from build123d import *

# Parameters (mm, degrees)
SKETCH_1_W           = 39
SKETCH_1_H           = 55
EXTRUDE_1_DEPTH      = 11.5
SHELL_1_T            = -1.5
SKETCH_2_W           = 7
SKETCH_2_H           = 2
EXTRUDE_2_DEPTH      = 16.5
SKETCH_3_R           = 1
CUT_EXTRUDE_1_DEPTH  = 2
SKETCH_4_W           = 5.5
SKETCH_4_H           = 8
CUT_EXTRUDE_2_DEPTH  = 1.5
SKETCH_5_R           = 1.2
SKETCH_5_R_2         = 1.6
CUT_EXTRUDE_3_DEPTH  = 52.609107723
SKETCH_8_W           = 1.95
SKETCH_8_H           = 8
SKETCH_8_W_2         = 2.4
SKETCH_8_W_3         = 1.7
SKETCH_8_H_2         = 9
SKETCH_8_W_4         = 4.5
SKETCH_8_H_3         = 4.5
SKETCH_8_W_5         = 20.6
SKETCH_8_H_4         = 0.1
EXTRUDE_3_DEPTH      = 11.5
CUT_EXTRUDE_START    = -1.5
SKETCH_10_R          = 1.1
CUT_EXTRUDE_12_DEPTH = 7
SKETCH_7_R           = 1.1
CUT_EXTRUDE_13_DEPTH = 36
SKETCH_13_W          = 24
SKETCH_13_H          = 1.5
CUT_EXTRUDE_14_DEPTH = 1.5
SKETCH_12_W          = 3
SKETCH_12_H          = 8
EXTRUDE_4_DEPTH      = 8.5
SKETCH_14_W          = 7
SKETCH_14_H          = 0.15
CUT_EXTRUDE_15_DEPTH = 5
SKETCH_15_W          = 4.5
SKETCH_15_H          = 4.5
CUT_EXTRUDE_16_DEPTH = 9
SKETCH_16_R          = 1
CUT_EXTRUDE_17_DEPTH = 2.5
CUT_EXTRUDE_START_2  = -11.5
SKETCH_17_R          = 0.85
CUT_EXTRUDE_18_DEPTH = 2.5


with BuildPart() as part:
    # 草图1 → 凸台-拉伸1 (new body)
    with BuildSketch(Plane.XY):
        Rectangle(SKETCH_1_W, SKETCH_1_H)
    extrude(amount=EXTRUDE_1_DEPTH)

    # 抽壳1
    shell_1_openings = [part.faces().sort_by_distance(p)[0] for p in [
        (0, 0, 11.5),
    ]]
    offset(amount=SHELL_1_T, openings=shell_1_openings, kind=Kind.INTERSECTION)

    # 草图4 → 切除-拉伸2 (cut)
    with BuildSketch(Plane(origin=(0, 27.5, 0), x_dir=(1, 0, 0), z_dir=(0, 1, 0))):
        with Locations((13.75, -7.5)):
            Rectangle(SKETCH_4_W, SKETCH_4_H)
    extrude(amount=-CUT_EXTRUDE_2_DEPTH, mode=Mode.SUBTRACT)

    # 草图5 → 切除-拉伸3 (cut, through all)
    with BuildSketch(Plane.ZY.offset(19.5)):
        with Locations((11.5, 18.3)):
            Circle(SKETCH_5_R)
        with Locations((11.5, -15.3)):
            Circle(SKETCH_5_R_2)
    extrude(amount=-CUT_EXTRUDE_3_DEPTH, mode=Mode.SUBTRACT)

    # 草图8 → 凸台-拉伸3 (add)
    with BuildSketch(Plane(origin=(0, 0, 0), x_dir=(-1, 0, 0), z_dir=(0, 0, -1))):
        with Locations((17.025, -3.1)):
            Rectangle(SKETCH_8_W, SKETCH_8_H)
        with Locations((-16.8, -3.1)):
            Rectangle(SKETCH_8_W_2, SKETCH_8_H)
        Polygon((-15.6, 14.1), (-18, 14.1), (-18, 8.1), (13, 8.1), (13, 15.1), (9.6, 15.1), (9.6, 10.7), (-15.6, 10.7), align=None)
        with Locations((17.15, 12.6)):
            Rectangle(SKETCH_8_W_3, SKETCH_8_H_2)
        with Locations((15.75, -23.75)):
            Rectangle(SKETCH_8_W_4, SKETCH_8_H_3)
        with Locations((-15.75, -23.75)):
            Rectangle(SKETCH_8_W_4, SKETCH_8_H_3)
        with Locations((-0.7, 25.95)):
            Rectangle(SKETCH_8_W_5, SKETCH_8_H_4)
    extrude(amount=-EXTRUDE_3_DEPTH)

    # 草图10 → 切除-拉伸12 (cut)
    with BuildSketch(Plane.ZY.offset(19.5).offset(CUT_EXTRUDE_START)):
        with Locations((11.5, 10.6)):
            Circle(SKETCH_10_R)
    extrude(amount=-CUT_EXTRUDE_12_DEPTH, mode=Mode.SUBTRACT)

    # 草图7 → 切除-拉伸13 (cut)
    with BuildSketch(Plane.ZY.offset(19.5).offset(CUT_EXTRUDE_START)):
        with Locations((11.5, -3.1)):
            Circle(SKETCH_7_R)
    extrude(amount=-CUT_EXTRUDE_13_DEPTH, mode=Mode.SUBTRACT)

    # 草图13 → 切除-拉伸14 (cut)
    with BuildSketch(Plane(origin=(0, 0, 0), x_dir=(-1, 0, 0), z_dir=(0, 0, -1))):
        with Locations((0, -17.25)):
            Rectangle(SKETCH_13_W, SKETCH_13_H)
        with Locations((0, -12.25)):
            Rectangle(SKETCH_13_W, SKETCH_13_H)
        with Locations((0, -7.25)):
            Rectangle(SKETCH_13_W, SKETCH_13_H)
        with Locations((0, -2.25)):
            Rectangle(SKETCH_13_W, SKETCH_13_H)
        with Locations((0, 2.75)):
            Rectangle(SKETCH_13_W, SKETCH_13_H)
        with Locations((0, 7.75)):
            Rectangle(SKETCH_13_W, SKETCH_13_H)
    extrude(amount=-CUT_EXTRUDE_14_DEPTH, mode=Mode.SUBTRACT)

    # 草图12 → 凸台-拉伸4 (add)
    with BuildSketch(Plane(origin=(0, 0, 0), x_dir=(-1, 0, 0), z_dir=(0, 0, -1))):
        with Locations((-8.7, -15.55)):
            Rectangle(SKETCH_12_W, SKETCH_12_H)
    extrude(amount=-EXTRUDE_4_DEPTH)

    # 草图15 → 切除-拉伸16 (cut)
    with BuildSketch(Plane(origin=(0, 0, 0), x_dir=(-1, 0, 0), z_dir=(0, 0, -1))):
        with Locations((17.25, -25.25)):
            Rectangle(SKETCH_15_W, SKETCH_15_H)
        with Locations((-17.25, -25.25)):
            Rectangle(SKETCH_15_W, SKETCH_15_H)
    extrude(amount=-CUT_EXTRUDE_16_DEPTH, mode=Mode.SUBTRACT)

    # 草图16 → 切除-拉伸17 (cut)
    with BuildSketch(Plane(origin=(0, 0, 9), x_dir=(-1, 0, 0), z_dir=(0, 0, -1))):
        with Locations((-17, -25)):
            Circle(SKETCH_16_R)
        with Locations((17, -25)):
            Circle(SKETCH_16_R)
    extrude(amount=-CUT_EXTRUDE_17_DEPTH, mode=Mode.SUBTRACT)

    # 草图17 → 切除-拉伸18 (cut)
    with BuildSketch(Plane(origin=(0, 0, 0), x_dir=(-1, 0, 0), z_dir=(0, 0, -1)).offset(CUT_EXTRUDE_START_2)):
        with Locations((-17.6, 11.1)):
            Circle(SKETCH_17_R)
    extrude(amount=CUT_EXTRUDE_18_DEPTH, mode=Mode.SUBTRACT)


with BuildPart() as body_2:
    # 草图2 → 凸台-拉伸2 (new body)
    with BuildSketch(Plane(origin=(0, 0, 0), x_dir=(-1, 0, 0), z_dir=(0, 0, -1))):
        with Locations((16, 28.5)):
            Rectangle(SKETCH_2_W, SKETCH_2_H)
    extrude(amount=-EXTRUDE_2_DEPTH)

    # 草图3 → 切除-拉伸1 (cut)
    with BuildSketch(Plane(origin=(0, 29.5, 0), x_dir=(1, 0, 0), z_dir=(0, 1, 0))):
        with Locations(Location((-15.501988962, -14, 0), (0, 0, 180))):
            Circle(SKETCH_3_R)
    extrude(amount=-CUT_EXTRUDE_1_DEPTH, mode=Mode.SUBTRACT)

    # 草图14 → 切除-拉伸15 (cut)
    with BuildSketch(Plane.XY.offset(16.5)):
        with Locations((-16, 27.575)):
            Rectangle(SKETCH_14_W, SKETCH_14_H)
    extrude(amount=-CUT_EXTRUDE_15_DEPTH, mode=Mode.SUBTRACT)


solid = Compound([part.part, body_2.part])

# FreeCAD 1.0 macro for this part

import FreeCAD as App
import Part
import Sketcher
Q = App.Units.Quantity


def faces_at(feature, points):
    """Names of the faces that lie closest to the given points."""
    faces = feature.Shape.Faces
    near = lambda p: min(range(len(faces)), key=lambda i: faces[i].distToShape(Part.Vertex(*p))[0])
    return sorted({f"Face{near(p) + 1}" for p in points})

doc = App.newDocument("Part")
body = doc.addObject("PartDesign::Body", "Body")

sketch1 = body.newObject("Sketcher::SketchObject", "Sketch")
sketch1.AttachmentSupport = (doc.getObject("XY_Plane"), [""])
sketch1.MapMode = "FlatFace"
sketch1.addGeometry(Part.LineSegment(App.Vector(-20, 28, 0), App.Vector(-20, -28, 0)), False)
sketch1.addGeometry(Part.LineSegment(App.Vector(-20, -28, 0), App.Vector(20, -28, 0)), False)
sketch1.addGeometry(Part.LineSegment(App.Vector(20, -28, 0), App.Vector(20, 28, 0)), False)
sketch1.addGeometry(Part.LineSegment(App.Vector(20, 28, 0), App.Vector(-20, 28, 0)), False)
sketch1.addConstraint(Sketcher.Constraint("Coincident", 0, 2, 1, 1))
sketch1.addConstraint(Sketcher.Constraint("Coincident", 1, 2, 2, 1))
sketch1.addConstraint(Sketcher.Constraint("Coincident", 2, 2, 3, 1))
sketch1.addConstraint(Sketcher.Constraint("Coincident", 3, 2, 0, 1))
sketch1.addConstraint(Sketcher.Constraint("Vertical", 0))
sketch1.addConstraint(Sketcher.Constraint("Horizontal", 1))
sketch1.addConstraint(Sketcher.Constraint("Vertical", 2))
sketch1.addConstraint(Sketcher.Constraint("Horizontal", 3))
sketch1.addConstraint(Sketcher.Constraint("Symmetric", 0, 2, 2, 2, -1, 1))
sketch1.addConstraint(Sketcher.Constraint("DistanceX", 1, 1, 1, 2, Q("39 mm")))
sketch1.addConstraint(Sketcher.Constraint("DistanceY", 0, 2, 0, 1, Q("55 mm")))
pad1 = body.newObject("PartDesign::Pad", "Pad")
pad1.Profile = sketch1
pad1.Length = 11.5
doc.recompute()

thickness = body.newObject("PartDesign::Thickness", "Thickness")
thickness.Base = (pad1, faces_at(pad1, [(0, 0, 11.5)]))
thickness.Value = 1.5
thickness.Reversed = True
thickness.Join = "Intersection"

sketch2 = body.newObject("Sketcher::SketchObject", "Sketch001")
sketch2.AttachmentSupport = (doc.getObject("XZ_Plane"), [""])
sketch2.MapMode = "FlatFace"
sketch2.AttachmentOffset = App.Placement(App.Vector(0, 0, -27.5), App.Rotation())
sketch2.addGeometry(Part.LineSegment(App.Vector(11, 4, 0), App.Vector(11, 12, 0)), False)
sketch2.addGeometry(Part.LineSegment(App.Vector(11, 12, 0), App.Vector(16, 12, 0)), False)
sketch2.addGeometry(Part.LineSegment(App.Vector(16, 12, 0), App.Vector(16, 4, 0)), False)
sketch2.addGeometry(Part.LineSegment(App.Vector(16, 4, 0), App.Vector(11, 4, 0)), False)
sketch2.addConstraint(Sketcher.Constraint("Coincident", 0, 2, 1, 1))
sketch2.addConstraint(Sketcher.Constraint("Coincident", 1, 2, 2, 1))
sketch2.addConstraint(Sketcher.Constraint("Coincident", 2, 2, 3, 1))
sketch2.addConstraint(Sketcher.Constraint("Coincident", 3, 2, 0, 1))
sketch2.addConstraint(Sketcher.Constraint("Vertical", 0))
sketch2.addConstraint(Sketcher.Constraint("Horizontal", 1))
sketch2.addConstraint(Sketcher.Constraint("Vertical", 2))
sketch2.addConstraint(Sketcher.Constraint("Horizontal", 3))
sketch2.addConstraint(Sketcher.Constraint("DistanceY", 0, 1, 0, 2, Q("8 mm")))
sketch2.addConstraint(Sketcher.Constraint("DistanceX", 1, 1, 1, 2, Q("5.5 mm")))
sketch2.addConstraint(Sketcher.Constraint("DistanceX", -1, 1, 0, 2, Q("11 mm")))
sketch2.addConstraint(Sketcher.Constraint("DistanceY", -1, 1, 0, 2, Q("11.5 mm")))
pocket1 = body.newObject("PartDesign::Pocket", "Pocket")
pocket1.Profile = sketch2
pocket1.Length = 1.5
pocket1.Reversed = True

sketch3 = body.newObject("Sketcher::SketchObject", "Sketch002")
sketch3.AttachmentSupport = (doc.getObject("YZ_Plane"), [""])
sketch3.MapMode = "FlatFace"
sketch3.AttachmentOffset = App.Placement(App.Vector(0, 0, -19.5), App.Rotation())
sketch3.addGeometry(Part.Circle(App.Vector(18.3, 11.5, 0), App.Vector(0, 0, 1), 1.2), False)
sketch3.addGeometry(Part.Circle(App.Vector(-15.3, 11.5, 0), App.Vector(0, 0, 1), 1.6), False)
sketch3.addConstraint(Sketcher.Constraint("Horizontal", 0, 3, 1, 3))
sketch3.addConstraint(Sketcher.Constraint("Diameter", 0, Q("2.4 mm")))
sketch3.addConstraint(Sketcher.Constraint("Diameter", 1, Q("3.2 mm")))
sketch3.addConstraint(Sketcher.Constraint("DistanceX", -1, 1, 0, 3, Q("18.3 mm")))
sketch3.addConstraint(Sketcher.Constraint("DistanceY", -1, 1, 0, 3, Q("11.5 mm")))
sketch3.addConstraint(Sketcher.Constraint("DistanceX", 1, 3, -1, 1, Q("15.3 mm")))
pocket2 = body.newObject("PartDesign::Pocket", "Pocket001")
pocket2.Profile = sketch3
pocket2.Type = "ThroughAll"
pocket2.Reversed = True

sketch4 = body.newObject("Sketcher::SketchObject", "Sketch003")
sketch4.AttachmentSupport = (doc.getObject("XY_Plane"), [""])
sketch4.MapMode = "FlatFace"
sketch4.addGeometry(Part.LineSegment(App.Vector(-16.05, 0.9, 0), App.Vector(-16.05, -7.1, 0)), False)
sketch4.addGeometry(Part.LineSegment(App.Vector(-16.05, -7.1, 0), App.Vector(-18, -7.1, 0)), False)
sketch4.addGeometry(Part.LineSegment(App.Vector(-18, -7.1, 0), App.Vector(-18, 0.9, 0)), False)
sketch4.addGeometry(Part.LineSegment(App.Vector(-18, 0.9, 0), App.Vector(-16.05, 0.9, 0)), False)
sketch4.addGeometry(Part.LineSegment(App.Vector(18, 0.9, 0), App.Vector(18, -7.1, 0)), False)
sketch4.addGeometry(Part.LineSegment(App.Vector(18, -7.1, 0), App.Vector(15.6, -7.1, 0)), False)
sketch4.addGeometry(Part.LineSegment(App.Vector(15.6, -7.1, 0), App.Vector(15.6, 0.9, 0)), False)
sketch4.addGeometry(Part.LineSegment(App.Vector(15.6, 0.9, 0), App.Vector(18, 0.9, 0)), False)
sketch4.addGeometry(Part.LineSegment(App.Vector(15.6, 14.1, 0), App.Vector(18, 14.1, 0)), False)
sketch4.addGeometry(Part.LineSegment(App.Vector(18, 14.1, 0), App.Vector(18, 8.1, 0)), False)
sketch4.addGeometry(Part.LineSegment(App.Vector(18, 8.1, 0), App.Vector(-13, 8.1, 0)), False)
sketch4.addGeometry(Part.LineSegment(App.Vector(-13, 8.1, 0), App.Vector(-13, 15.1, 0)), False)
sketch4.addGeometry(Part.LineSegment(App.Vector(-13, 15.1, 0), App.Vector(-9.6, 15.1, 0)), False)
sketch4.addGeometry(Part.LineSegment(App.Vector(-9.6, 15.1, 0), App.Vector(-9.6, 10.7, 0)), False)
sketch4.addGeometry(Part.LineSegment(App.Vector(-9.6, 10.7, 0), App.Vector(15.6, 10.7, 0)), False)
sketch4.addGeometry(Part.LineSegment(App.Vector(15.6, 10.7, 0), App.Vector(15.6, 14.1, 0)), False)
sketch4.addGeometry(Part.LineSegment(App.Vector(-16.3, 17.1, 0), App.Vector(-16.3, 8.1, 0)), False)
sketch4.addGeometry(Part.LineSegment(App.Vector(-16.3, 8.1, 0), App.Vector(-18, 8.1, 0)), False)
sketch4.addGeometry(Part.LineSegment(App.Vector(-18, 8.1, 0), App.Vector(-18, 17.1, 0)), False)
sketch4.addGeometry(Part.LineSegment(App.Vector(-18, 17.1, 0), App.Vector(-16.3, 17.1, 0)), False)
sketch4.addGeometry(Part.LineSegment(App.Vector(-13.5, -21.5, 0), App.Vector(-13.5, -26, 0)), False)
sketch4.addGeometry(Part.LineSegment(App.Vector(-13.5, -26, 0), App.Vector(-18, -26, 0)), False)
sketch4.addGeometry(Part.LineSegment(App.Vector(-18, -26, 0), App.Vector(-18, -21.5, 0)), False)
sketch4.addGeometry(Part.LineSegment(App.Vector(-18, -21.5, 0), App.Vector(-13.5, -21.5, 0)), False)
sketch4.addGeometry(Part.LineSegment(App.Vector(18, -21.5, 0), App.Vector(18, -26, 0)), False)
sketch4.addGeometry(Part.LineSegment(App.Vector(18, -26, 0), App.Vector(13.5, -26, 0)), False)
sketch4.addGeometry(Part.LineSegment(App.Vector(13.5, -26, 0), App.Vector(13.5, -21.5, 0)), False)
sketch4.addGeometry(Part.LineSegment(App.Vector(13.5, -21.5, 0), App.Vector(18, -21.5, 0)), False)
sketch4.addGeometry(Part.LineSegment(App.Vector(11, 26, 0), App.Vector(11, 25.9, 0)), False)
sketch4.addGeometry(Part.LineSegment(App.Vector(11, 25.9, 0), App.Vector(-9.6, 25.9, 0)), False)
sketch4.addGeometry(Part.LineSegment(App.Vector(-9.6, 25.9, 0), App.Vector(-9.6, 26, 0)), False)
sketch4.addGeometry(Part.LineSegment(App.Vector(-9.6, 26, 0), App.Vector(11, 26, 0)), False)
sketch4.addConstraint(Sketcher.Constraint("Coincident", 0, 2, 1, 1))
sketch4.addConstraint(Sketcher.Constraint("Coincident", 1, 2, 2, 1))
sketch4.addConstraint(Sketcher.Constraint("Coincident", 2, 2, 3, 1))
sketch4.addConstraint(Sketcher.Constraint("Coincident", 3, 2, 0, 1))
sketch4.addConstraint(Sketcher.Constraint("Coincident", 4, 2, 5, 1))
sketch4.addConstraint(Sketcher.Constraint("Coincident", 5, 2, 6, 1))
sketch4.addConstraint(Sketcher.Constraint("Coincident", 6, 2, 7, 1))
sketch4.addConstraint(Sketcher.Constraint("Coincident", 7, 2, 4, 1))
sketch4.addConstraint(Sketcher.Constraint("Coincident", 8, 2, 9, 1))
sketch4.addConstraint(Sketcher.Constraint("Coincident", 9, 2, 10, 1))
sketch4.addConstraint(Sketcher.Constraint("Coincident", 10, 2, 11, 1))
sketch4.addConstraint(Sketcher.Constraint("Coincident", 11, 2, 12, 1))
sketch4.addConstraint(Sketcher.Constraint("Coincident", 12, 2, 13, 1))
sketch4.addConstraint(Sketcher.Constraint("Coincident", 13, 2, 14, 1))
sketch4.addConstraint(Sketcher.Constraint("Coincident", 14, 2, 15, 1))
sketch4.addConstraint(Sketcher.Constraint("Coincident", 15, 2, 8, 1))
sketch4.addConstraint(Sketcher.Constraint("Coincident", 16, 2, 17, 1))
sketch4.addConstraint(Sketcher.Constraint("Coincident", 17, 2, 18, 1))
sketch4.addConstraint(Sketcher.Constraint("Coincident", 18, 2, 19, 1))
sketch4.addConstraint(Sketcher.Constraint("Coincident", 19, 2, 16, 1))
sketch4.addConstraint(Sketcher.Constraint("Coincident", 20, 2, 21, 1))
sketch4.addConstraint(Sketcher.Constraint("Coincident", 21, 2, 22, 1))
sketch4.addConstraint(Sketcher.Constraint("Coincident", 22, 2, 23, 1))
sketch4.addConstraint(Sketcher.Constraint("Coincident", 23, 2, 20, 1))
sketch4.addConstraint(Sketcher.Constraint("Coincident", 24, 2, 25, 1))
sketch4.addConstraint(Sketcher.Constraint("Coincident", 25, 2, 26, 1))
sketch4.addConstraint(Sketcher.Constraint("Coincident", 26, 2, 27, 1))
sketch4.addConstraint(Sketcher.Constraint("Coincident", 27, 2, 24, 1))
sketch4.addConstraint(Sketcher.Constraint("Coincident", 28, 2, 29, 1))
sketch4.addConstraint(Sketcher.Constraint("Coincident", 29, 2, 30, 1))
sketch4.addConstraint(Sketcher.Constraint("Coincident", 30, 2, 31, 1))
sketch4.addConstraint(Sketcher.Constraint("Coincident", 31, 2, 28, 1))
sketch4.addConstraint(Sketcher.Constraint("Vertical", 0))
sketch4.addConstraint(Sketcher.Constraint("Horizontal", 1))
sketch4.addConstraint(Sketcher.Constraint("Vertical", 2))
sketch4.addConstraint(Sketcher.Constraint("Horizontal", 3))
sketch4.addConstraint(Sketcher.Constraint("Vertical", 4))
sketch4.addConstraint(Sketcher.Constraint("Horizontal", 5))
sketch4.addConstraint(Sketcher.Constraint("Vertical", 6))
sketch4.addConstraint(Sketcher.Constraint("Horizontal", 7))
sketch4.addConstraint(Sketcher.Constraint("Horizontal", 8))
sketch4.addConstraint(Sketcher.Constraint("Vertical", 9))
sketch4.addConstraint(Sketcher.Constraint("Horizontal", 10))
sketch4.addConstraint(Sketcher.Constraint("Vertical", 11))
sketch4.addConstraint(Sketcher.Constraint("Horizontal", 12))
sketch4.addConstraint(Sketcher.Constraint("Vertical", 13))
sketch4.addConstraint(Sketcher.Constraint("Horizontal", 14))
sketch4.addConstraint(Sketcher.Constraint("Vertical", 15))
sketch4.addConstraint(Sketcher.Constraint("Vertical", 16))
sketch4.addConstraint(Sketcher.Constraint("Horizontal", 17))
sketch4.addConstraint(Sketcher.Constraint("Vertical", 18))
sketch4.addConstraint(Sketcher.Constraint("Horizontal", 19))
sketch4.addConstraint(Sketcher.Constraint("Vertical", 20))
sketch4.addConstraint(Sketcher.Constraint("Horizontal", 21))
sketch4.addConstraint(Sketcher.Constraint("Vertical", 22))
sketch4.addConstraint(Sketcher.Constraint("Horizontal", 23))
sketch4.addConstraint(Sketcher.Constraint("Vertical", 24))
sketch4.addConstraint(Sketcher.Constraint("Horizontal", 25))
sketch4.addConstraint(Sketcher.Constraint("Vertical", 26))
sketch4.addConstraint(Sketcher.Constraint("Horizontal", 27))
sketch4.addConstraint(Sketcher.Constraint("Vertical", 28))
sketch4.addConstraint(Sketcher.Constraint("Horizontal", 29))
sketch4.addConstraint(Sketcher.Constraint("Vertical", 30))
sketch4.addConstraint(Sketcher.Constraint("Horizontal", 31))
sketch4.addConstraint(Sketcher.Constraint("Symmetric", 1, 2, 4, 2, -2))
sketch4.addConstraint(Sketcher.Constraint("Symmetric", 9, 2, 17, 2, -2))
sketch4.addConstraint(Sketcher.Constraint("Symmetric", 21, 2, 24, 2, -2))
sketch4.addConstraint(Sketcher.Constraint("Symmetric", 23, 2, 26, 2, -2))
sketch4.addConstraint(Sketcher.Constraint("Horizontal", 3, 2, 6, 2))
sketch4.addConstraint(Sketcher.Constraint("Vertical", 7, 2, 8, 2))
sketch4.addConstraint(Sketcher.Constraint("Vertical", 6, 2, 14, 2))
sketch4.addConstraint(Sketcher.Constraint("Vertical", 18, 2, 21, 2))
sketch4.addConstraint(Sketcher.Constraint("Vertical", 13, 2, 29, 2))
sketch4.addConstraint(Sketcher.Constraint("Equal", 12, 15))
sketch4.addConstraint(Sketcher.Constraint("Equal", 27, 20))
sketch4.addConstraint(Sketcher.Constraint("DistanceX", 10, 2, 10, 1, Q("31 mm")))
sketch4.addConstraint(Sketcher.Constraint("DistanceY", 0, 2, 0, 1, Q("8 mm")))
sketch4.addConstraint(Sketcher.Constraint("DistanceY", 9, 2, 9, 1, Q("6 mm")))
sketch4.addConstraint(Sketcher.Constraint("DistanceY", 11, 1, 11, 2, Q("7 mm")))
sketch4.addConstraint(Sketcher.Constraint("DistanceY", 16, 2, 16, 1, Q("9 mm")))
sketch4.addConstraint(Sketcher.Constraint("DistanceX", 5, 2, 5, 1, Q("2.4 mm")))
sketch4.addConstraint(Sketcher.Constraint("DistanceX", 12, 1, 12, 2, Q("3.4 mm")))
sketch4.addConstraint(Sketcher.Constraint("DistanceX", 17, 2, 17, 1, Q("1.7 mm")))
sketch4.addConstraint(Sketcher.Constraint("DistanceX", 21, 2, 21, 1, Q("4.5 mm")))
sketch4.addConstraint(Sketcher.Constraint("DistanceX", 29, 2, 29, 1, Q("20.6 mm")))
sketch4.addConstraint(Sketcher.Constraint("DistanceY", 28, 2, 28, 1, Q("0.1 mm")))
sketch4.addConstraint(Sketcher.Constraint("DistanceX", 1, 2, -1, 1, Q("18 mm")))
sketch4.addConstraint(Sketcher.Constraint("DistanceY", 20, 2, -1, 1, Q("26 mm")))
sketch4.addConstraint(Sketcher.Constraint("DistanceY", -1, 1, 30, 2, Q("26 mm")))
sketch4.addConstraint(Sketcher.Constraint("DistanceX", 1, 2, 1, 1, Q("1.95 mm")))
sketch4.addConstraint(Sketcher.Constraint("DistanceY", 0, 2, -1, 1, Q("7.1 mm")))
sketch4.addConstraint(Sketcher.Constraint("DistanceY", -1, 1, 8, 2, Q("14.1 mm")))
pad2 = body.newObject("PartDesign::Pad", "Pad001")
pad2.Profile = sketch4
pad2.Length = 11.5

sketch5 = body.newObject("Sketcher::SketchObject", "Sketch004")
sketch5.AttachmentSupport = (doc.getObject("YZ_Plane"), [""])
sketch5.MapMode = "FlatFace"
sketch5.AttachmentOffset = App.Placement(App.Vector(0, 0, -18), App.Rotation())
sketch5.addGeometry(Part.Circle(App.Vector(10.6, 11.5, 0), App.Vector(0, 0, 1), 1.1), False)
sketch5.addConstraint(Sketcher.Constraint("Diameter", 0, Q("2.2 mm")))
sketch5.addConstraint(Sketcher.Constraint("DistanceX", -1, 1, 0, 3, Q("10.6 mm")))
sketch5.addConstraint(Sketcher.Constraint("DistanceY", -1, 1, 0, 3, Q("11.5 mm")))
pocket3 = body.newObject("PartDesign::Pocket", "Pocket002")
pocket3.Profile = sketch5
pocket3.Length = 7
pocket3.Reversed = True

sketch6 = body.newObject("Sketcher::SketchObject", "Sketch005")
sketch6.AttachmentSupport = (doc.getObject("YZ_Plane"), [""])
sketch6.MapMode = "FlatFace"
sketch6.AttachmentOffset = App.Placement(App.Vector(0, 0, -18), App.Rotation())
sketch6.addGeometry(Part.Circle(App.Vector(-3.1, 11.5, 0), App.Vector(0, 0, 1), 1.1), False)
sketch6.addConstraint(Sketcher.Constraint("Diameter", 0, Q("2.2 mm")))
sketch6.addConstraint(Sketcher.Constraint("DistanceX", 0, 3, -1, 1, Q("3.1 mm")))
sketch6.addConstraint(Sketcher.Constraint("DistanceY", -1, 1, 0, 3, Q("11.5 mm")))
pocket4 = body.newObject("PartDesign::Pocket", "Pocket003")
pocket4.Profile = sketch6
pocket4.Length = 36
pocket4.Reversed = True

sketch7 = body.newObject("Sketcher::SketchObject", "Sketch006")
sketch7.AttachmentSupport = (doc.getObject("XY_Plane"), [""])
sketch7.MapMode = "FlatFace"
sketch7.addGeometry(Part.LineSegment(App.Vector(12, -16.5, 0), App.Vector(12, -18, 0)), False)
sketch7.addGeometry(Part.LineSegment(App.Vector(12, -18, 0), App.Vector(-12, -18, 0)), False)
sketch7.addGeometry(Part.LineSegment(App.Vector(-12, -18, 0), App.Vector(-12, -16.5, 0)), False)
sketch7.addGeometry(Part.LineSegment(App.Vector(-12, -16.5, 0), App.Vector(12, -16.5, 0)), False)
sketch7.addGeometry(Part.LineSegment(App.Vector(12, -11.5, 0), App.Vector(12, -13, 0)), False)
sketch7.addGeometry(Part.LineSegment(App.Vector(12, -13, 0), App.Vector(-12, -13, 0)), False)
sketch7.addGeometry(Part.LineSegment(App.Vector(-12, -13, 0), App.Vector(-12, -11.5, 0)), False)
sketch7.addGeometry(Part.LineSegment(App.Vector(-12, -11.5, 0), App.Vector(12, -11.5, 0)), False)
sketch7.addGeometry(Part.LineSegment(App.Vector(12, -6.5, 0), App.Vector(12, -8, 0)), False)
sketch7.addGeometry(Part.LineSegment(App.Vector(12, -8, 0), App.Vector(-12, -8, 0)), False)
sketch7.addGeometry(Part.LineSegment(App.Vector(-12, -8, 0), App.Vector(-12, -6.5, 0)), False)
sketch7.addGeometry(Part.LineSegment(App.Vector(-12, -6.5, 0), App.Vector(12, -6.5, 0)), False)
sketch7.addGeometry(Part.LineSegment(App.Vector(12, -1.5, 0), App.Vector(12, -3, 0)), False)
sketch7.addGeometry(Part.LineSegment(App.Vector(12, -3, 0), App.Vector(-12, -3, 0)), False)
sketch7.addGeometry(Part.LineSegment(App.Vector(-12, -3, 0), App.Vector(-12, -1.5, 0)), False)
sketch7.addGeometry(Part.LineSegment(App.Vector(-12, -1.5, 0), App.Vector(12, -1.5, 0)), False)
sketch7.addGeometry(Part.LineSegment(App.Vector(12, 3.5, 0), App.Vector(12, 2, 0)), False)
sketch7.addGeometry(Part.LineSegment(App.Vector(12, 2, 0), App.Vector(-12, 2, 0)), False)
sketch7.addGeometry(Part.LineSegment(App.Vector(-12, 2, 0), App.Vector(-12, 3.5, 0)), False)
sketch7.addGeometry(Part.LineSegment(App.Vector(-12, 3.5, 0), App.Vector(12, 3.5, 0)), False)
sketch7.addGeometry(Part.LineSegment(App.Vector(12, 8.5, 0), App.Vector(12, 7, 0)), False)
sketch7.addGeometry(Part.LineSegment(App.Vector(12, 7, 0), App.Vector(-12, 7, 0)), False)
sketch7.addGeometry(Part.LineSegment(App.Vector(-12, 7, 0), App.Vector(-12, 8.5, 0)), False)
sketch7.addGeometry(Part.LineSegment(App.Vector(-12, 8.5, 0), App.Vector(12, 8.5, 0)), False)
sketch7.addConstraint(Sketcher.Constraint("Coincident", 0, 2, 1, 1))
sketch7.addConstraint(Sketcher.Constraint("Coincident", 1, 2, 2, 1))
sketch7.addConstraint(Sketcher.Constraint("Coincident", 2, 2, 3, 1))
sketch7.addConstraint(Sketcher.Constraint("Coincident", 3, 2, 0, 1))
sketch7.addConstraint(Sketcher.Constraint("Coincident", 4, 2, 5, 1))
sketch7.addConstraint(Sketcher.Constraint("Coincident", 5, 2, 6, 1))
sketch7.addConstraint(Sketcher.Constraint("Coincident", 6, 2, 7, 1))
sketch7.addConstraint(Sketcher.Constraint("Coincident", 7, 2, 4, 1))
sketch7.addConstraint(Sketcher.Constraint("Coincident", 8, 2, 9, 1))
sketch7.addConstraint(Sketcher.Constraint("Coincident", 9, 2, 10, 1))
sketch7.addConstraint(Sketcher.Constraint("Coincident", 10, 2, 11, 1))
sketch7.addConstraint(Sketcher.Constraint("Coincident", 11, 2, 8, 1))
sketch7.addConstraint(Sketcher.Constraint("Coincident", 12, 2, 13, 1))
sketch7.addConstraint(Sketcher.Constraint("Coincident", 13, 2, 14, 1))
sketch7.addConstraint(Sketcher.Constraint("Coincident", 14, 2, 15, 1))
sketch7.addConstraint(Sketcher.Constraint("Coincident", 15, 2, 12, 1))
sketch7.addConstraint(Sketcher.Constraint("Coincident", 16, 2, 17, 1))
sketch7.addConstraint(Sketcher.Constraint("Coincident", 17, 2, 18, 1))
sketch7.addConstraint(Sketcher.Constraint("Coincident", 18, 2, 19, 1))
sketch7.addConstraint(Sketcher.Constraint("Coincident", 19, 2, 16, 1))
sketch7.addConstraint(Sketcher.Constraint("Coincident", 20, 2, 21, 1))
sketch7.addConstraint(Sketcher.Constraint("Coincident", 21, 2, 22, 1))
sketch7.addConstraint(Sketcher.Constraint("Coincident", 22, 2, 23, 1))
sketch7.addConstraint(Sketcher.Constraint("Coincident", 23, 2, 20, 1))
sketch7.addConstraint(Sketcher.Constraint("Vertical", 0))
sketch7.addConstraint(Sketcher.Constraint("Horizontal", 1))
sketch7.addConstraint(Sketcher.Constraint("Vertical", 2))
sketch7.addConstraint(Sketcher.Constraint("Horizontal", 3))
sketch7.addConstraint(Sketcher.Constraint("Vertical", 4))
sketch7.addConstraint(Sketcher.Constraint("Horizontal", 5))
sketch7.addConstraint(Sketcher.Constraint("Vertical", 6))
sketch7.addConstraint(Sketcher.Constraint("Horizontal", 7))
sketch7.addConstraint(Sketcher.Constraint("Vertical", 8))
sketch7.addConstraint(Sketcher.Constraint("Horizontal", 9))
sketch7.addConstraint(Sketcher.Constraint("Vertical", 10))
sketch7.addConstraint(Sketcher.Constraint("Horizontal", 11))
sketch7.addConstraint(Sketcher.Constraint("Vertical", 12))
sketch7.addConstraint(Sketcher.Constraint("Horizontal", 13))
sketch7.addConstraint(Sketcher.Constraint("Vertical", 14))
sketch7.addConstraint(Sketcher.Constraint("Horizontal", 15))
sketch7.addConstraint(Sketcher.Constraint("Vertical", 16))
sketch7.addConstraint(Sketcher.Constraint("Horizontal", 17))
sketch7.addConstraint(Sketcher.Constraint("Vertical", 18))
sketch7.addConstraint(Sketcher.Constraint("Horizontal", 19))
sketch7.addConstraint(Sketcher.Constraint("Vertical", 20))
sketch7.addConstraint(Sketcher.Constraint("Horizontal", 21))
sketch7.addConstraint(Sketcher.Constraint("Vertical", 22))
sketch7.addConstraint(Sketcher.Constraint("Horizontal", 23))
sketch7.addConstraint(Sketcher.Constraint("Vertical", 3, 2, 4, 2))
sketch7.addConstraint(Sketcher.Constraint("Vertical", 2, 2, 5, 2))
sketch7.addConstraint(Sketcher.Constraint("Vertical", 7, 2, 8, 2))
sketch7.addConstraint(Sketcher.Constraint("Vertical", 6, 2, 9, 2))
sketch7.addConstraint(Sketcher.Constraint("Vertical", 11, 2, 12, 2))
sketch7.addConstraint(Sketcher.Constraint("Vertical", 10, 2, 13, 2))
sketch7.addConstraint(Sketcher.Constraint("Vertical", 15, 2, 16, 2))
sketch7.addConstraint(Sketcher.Constraint("Vertical", 14, 2, 17, 2))
sketch7.addConstraint(Sketcher.Constraint("Vertical", 19, 2, 20, 2))
sketch7.addConstraint(Sketcher.Constraint("Vertical", 18, 2, 21, 2))
sketch7.addConstraint(Sketcher.Constraint("Equal", 2, 4))
sketch7.addConstraint(Sketcher.Constraint("Equal", 6, 8))
sketch7.addConstraint(Sketcher.Constraint("Equal", 10, 12))
sketch7.addConstraint(Sketcher.Constraint("Equal", 14, 16))
sketch7.addConstraint(Sketcher.Constraint("Equal", 18, 20))
sketch7.addConstraint(Sketcher.Constraint("DistanceX", 1, 2, 1, 1, Q("24 mm")))
sketch7.addConstraint(Sketcher.Constraint("DistanceY", 0, 2, 0, 1, Q("1.5 mm")))
sketch7.addConstraint(Sketcher.Constraint("DistanceX", -1, 1, 0, 2, Q("12 mm")))
sketch7.addConstraint(Sketcher.Constraint("DistanceY", 0, 2, -1, 1, Q("18 mm")))
sketch7.addConstraint(Sketcher.Constraint("DistanceY", 4, 2, -1, 1, Q("13 mm")))
sketch7.addConstraint(Sketcher.Constraint("DistanceY", 8, 2, -1, 1, Q("8 mm")))
sketch7.addConstraint(Sketcher.Constraint("DistanceY", 12, 2, -1, 1, Q("3 mm")))
sketch7.addConstraint(Sketcher.Constraint("DistanceY", -1, 1, 16, 2, Q("2 mm")))
sketch7.addConstraint(Sketcher.Constraint("DistanceY", -1, 1, 20, 2, Q("7 mm")))
pocket5 = body.newObject("PartDesign::Pocket", "Pocket004")
pocket5.Profile = sketch7
pocket5.Length = 1.5
pocket5.Reversed = True

sketch8 = body.newObject("Sketcher::SketchObject", "Sketch007")
sketch8.AttachmentSupport = (doc.getObject("XY_Plane"), [""])
sketch8.MapMode = "FlatFace"
sketch8.addGeometry(Part.LineSegment(App.Vector(10.2, -11.6, 0), App.Vector(10.2, -19.6, 0)), False)
sketch8.addGeometry(Part.LineSegment(App.Vector(10.2, -19.6, 0), App.Vector(7.2, -19.6, 0)), False)
sketch8.addGeometry(Part.LineSegment(App.Vector(7.2, -19.6, 0), App.Vector(7.2, -11.6, 0)), False)
sketch8.addGeometry(Part.LineSegment(App.Vector(7.2, -11.6, 0), App.Vector(10.2, -11.6, 0)), False)
sketch8.addConstraint(Sketcher.Constraint("Coincident", 0, 2, 1, 1))
sketch8.addConstraint(Sketcher.Constraint("Coincident", 1, 2, 2, 1))
sketch8.addConstraint(Sketcher.Constraint("Coincident", 2, 2, 3, 1))
sketch8.addConstraint(Sketcher.Constraint("Coincident", 3, 2, 0, 1))
sketch8.addConstraint(Sketcher.Constraint("Vertical", 0))
sketch8.addConstraint(Sketcher.Constraint("Horizontal", 1))
sketch8.addConstraint(Sketcher.Constraint("Vertical", 2))
sketch8.addConstraint(Sketcher.Constraint("Horizontal", 3))
sketch8.addConstraint(Sketcher.Constraint("DistanceX", 1, 2, 1, 1, Q("3 mm")))
sketch8.addConstraint(Sketcher.Constraint("DistanceY", 0, 2, 0, 1, Q("8 mm")))
sketch8.addConstraint(Sketcher.Constraint("DistanceX", -1, 1, 0, 2, Q("10.2 mm")))
sketch8.addConstraint(Sketcher.Constraint("DistanceY", 0, 2, -1, 1, Q("19.55 mm")))
pad3 = body.newObject("PartDesign::Pad", "Pad002")
pad3.Profile = sketch8
pad3.Length = 8.5

sketch9 = body.newObject("Sketcher::SketchObject", "Sketch008")
sketch9.AttachmentSupport = (doc.getObject("XY_Plane"), [""])
sketch9.MapMode = "FlatFace"
sketch9.addGeometry(Part.LineSegment(App.Vector(-15, -23, 0), App.Vector(-15, -27.5, 0)), False)
sketch9.addGeometry(Part.LineSegment(App.Vector(-15, -27.5, 0), App.Vector(-19.5, -27.5, 0)), False)
sketch9.addGeometry(Part.LineSegment(App.Vector(-19.5, -27.5, 0), App.Vector(-19.5, -23, 0)), False)
sketch9.addGeometry(Part.LineSegment(App.Vector(-19.5, -23, 0), App.Vector(-15, -23, 0)), False)
sketch9.addGeometry(Part.LineSegment(App.Vector(19.5, -23, 0), App.Vector(19.5, -27.5, 0)), False)
sketch9.addGeometry(Part.LineSegment(App.Vector(19.5, -27.5, 0), App.Vector(15, -27.5, 0)), False)
sketch9.addGeometry(Part.LineSegment(App.Vector(15, -27.5, 0), App.Vector(15, -23, 0)), False)
sketch9.addGeometry(Part.LineSegment(App.Vector(15, -23, 0), App.Vector(19.5, -23, 0)), False)
sketch9.addConstraint(Sketcher.Constraint("Coincident", 0, 2, 1, 1))
sketch9.addConstraint(Sketcher.Constraint("Coincident", 1, 2, 2, 1))
sketch9.addConstraint(Sketcher.Constraint("Coincident", 2, 2, 3, 1))
sketch9.addConstraint(Sketcher.Constraint("Coincident", 3, 2, 0, 1))
sketch9.addConstraint(Sketcher.Constraint("Coincident", 4, 2, 5, 1))
sketch9.addConstraint(Sketcher.Constraint("Coincident", 5, 2, 6, 1))
sketch9.addConstraint(Sketcher.Constraint("Coincident", 6, 2, 7, 1))
sketch9.addConstraint(Sketcher.Constraint("Coincident", 7, 2, 4, 1))
sketch9.addConstraint(Sketcher.Constraint("Vertical", 0))
sketch9.addConstraint(Sketcher.Constraint("Horizontal", 1))
sketch9.addConstraint(Sketcher.Constraint("Vertical", 2))
sketch9.addConstraint(Sketcher.Constraint("Horizontal", 3))
sketch9.addConstraint(Sketcher.Constraint("Vertical", 4))
sketch9.addConstraint(Sketcher.Constraint("Horizontal", 5))
sketch9.addConstraint(Sketcher.Constraint("Vertical", 6))
sketch9.addConstraint(Sketcher.Constraint("Horizontal", 7))
sketch9.addConstraint(Sketcher.Constraint("Symmetric", 1, 2, 4, 2, -2))
sketch9.addConstraint(Sketcher.Constraint("Symmetric", 3, 2, 6, 2, -2))
sketch9.addConstraint(Sketcher.Constraint("Equal", 7, 0))
sketch9.addConstraint(Sketcher.Constraint("DistanceX", 1, 2, 1, 1, Q("4.5 mm")))
sketch9.addConstraint(Sketcher.Constraint("DistanceX", 0, 2, -1, 1, Q("15 mm")))
sketch9.addConstraint(Sketcher.Constraint("DistanceY", 2, 2, -1, 1, Q("23 mm")))
pocket6 = body.newObject("PartDesign::Pocket", "Pocket005")
pocket6.Profile = sketch9
pocket6.Length = 9
pocket6.Reversed = True

sketch10 = body.newObject("Sketcher::SketchObject", "Sketch009")
sketch10.AttachmentSupport = (doc.getObject("XY_Plane"), [""])
sketch10.MapMode = "FlatFace"
sketch10.AttachmentOffset = App.Placement(App.Vector(0, 0, 9), App.Rotation())
sketch10.addGeometry(Part.Circle(App.Vector(17, -25, 0), App.Vector(0, 0, 1), 1), False)
sketch10.addGeometry(Part.Circle(App.Vector(-17, -25, 0), App.Vector(0, 0, 1), 1), False)
sketch10.addConstraint(Sketcher.Constraint("Equal", 0, 1))
sketch10.addConstraint(Sketcher.Constraint("Symmetric", 0, 3, 1, 3, -2))
sketch10.addConstraint(Sketcher.Constraint("Diameter", 0, Q("2 mm")))
sketch10.addConstraint(Sketcher.Constraint("DistanceX", -1, 1, 0, 3, Q("17 mm")))
sketch10.addConstraint(Sketcher.Constraint("DistanceY", 0, 3, -1, 1, Q("25 mm")))
pocket7 = body.newObject("PartDesign::Pocket", "Pocket006")
pocket7.Profile = sketch10
pocket7.Length = 2.5
pocket7.Reversed = True

sketch11 = body.newObject("Sketcher::SketchObject", "Sketch010")
sketch11.AttachmentSupport = (doc.getObject("XY_Plane"), [""])
sketch11.MapMode = "FlatFace"
sketch11.AttachmentOffset = App.Placement(App.Vector(0, 0, 11.5), App.Rotation())
sketch11.addGeometry(Part.Circle(App.Vector(17.6, 11.1, 0), App.Vector(0, 0, 1), 0.8), False)
sketch11.addConstraint(Sketcher.Constraint("Diameter", 0, Q("1.7 mm")))
sketch11.addConstraint(Sketcher.Constraint("DistanceX", -1, 1, 0, 3, Q("17.6 mm")))
sketch11.addConstraint(Sketcher.Constraint("DistanceY", -1, 1, 0, 3, Q("11.1 mm")))
pocket8 = body.newObject("PartDesign::Pocket", "Pocket007")
pocket8.Profile = sketch11
pocket8.Length = 2.5
body2 = doc.addObject("PartDesign::Body", "Body001")

sketch12 = body2.newObject("Sketcher::SketchObject", "Sketch011")
sketch12.AttachmentSupport = (doc.getObject("XY_Plane001"), [""])
sketch12.MapMode = "FlatFace"
sketch12.addGeometry(Part.LineSegment(App.Vector(-12.5, 29.5, 0), App.Vector(-12.5, 27.5, 0)), False)
sketch12.addGeometry(Part.LineSegment(App.Vector(-12.5, 27.5, 0), App.Vector(-19.5, 27.5, 0)), False)
sketch12.addGeometry(Part.LineSegment(App.Vector(-19.5, 27.5, 0), App.Vector(-19.5, 29.5, 0)), False)
sketch12.addGeometry(Part.LineSegment(App.Vector(-19.5, 29.5, 0), App.Vector(-12.5, 29.5, 0)), False)
sketch12.addConstraint(Sketcher.Constraint("Coincident", 0, 2, 1, 1))
sketch12.addConstraint(Sketcher.Constraint("Coincident", 1, 2, 2, 1))
sketch12.addConstraint(Sketcher.Constraint("Coincident", 2, 2, 3, 1))
sketch12.addConstraint(Sketcher.Constraint("Coincident", 3, 2, 0, 1))
sketch12.addConstraint(Sketcher.Constraint("Vertical", 0))
sketch12.addConstraint(Sketcher.Constraint("Horizontal", 1))
sketch12.addConstraint(Sketcher.Constraint("Vertical", 2))
sketch12.addConstraint(Sketcher.Constraint("Horizontal", 3))
sketch12.addConstraint(Sketcher.Constraint("DistanceX", 1, 2, 1, 1, Q("7 mm")))
sketch12.addConstraint(Sketcher.Constraint("DistanceY", 0, 2, 0, 1, Q("2 mm")))
sketch12.addConstraint(Sketcher.Constraint("DistanceX", 0, 2, -1, 1, Q("12.5 mm")))
sketch12.addConstraint(Sketcher.Constraint("DistanceY", -1, 1, 0, 2, Q("27.5 mm")))
pad4 = body2.newObject("PartDesign::Pad", "Pad003")
pad4.Profile = sketch12
pad4.Length = 16.5

sketch13 = body2.newObject("Sketcher::SketchObject", "Sketch012")
sketch13.AttachmentSupport = (doc.getObject("XZ_Plane001"), [""])
sketch13.MapMode = "FlatFace"
sketch13.AttachmentOffset = App.Placement(App.Vector(0, 0, -29.5), App.Rotation())
sketch13.addGeometry(Part.Circle(App.Vector(-15.5, 14, 0), App.Vector(0, 0, 1), 1), False)
sketch13.addConstraint(Sketcher.Constraint("Diameter", 0, Q("2 mm")))
sketch13.addConstraint(Sketcher.Constraint("DistanceY", -1, 1, 0, 3, Q("14 mm")))
sketch13.addConstraint(Sketcher.Constraint("DistanceX", 0, 3, -1, 1, Q("15.501989 mm")))
pocket9 = body2.newObject("PartDesign::Pocket", "Pocket008")
pocket9.Profile = sketch13
pocket9.Length = 2
pocket9.Reversed = True

sketch14 = body2.newObject("Sketcher::SketchObject", "Sketch013")
sketch14.AttachmentSupport = (doc.getObject("XY_Plane001"), [""])
sketch14.MapMode = "FlatFace"
sketch14.AttachmentOffset = App.Placement(App.Vector(0, 0, 16.5), App.Rotation())
sketch14.addGeometry(Part.LineSegment(App.Vector(-19.5, 27.65, 0), App.Vector(-19.5, 27.5, 0)), False)
sketch14.addGeometry(Part.LineSegment(App.Vector(-19.5, 27.5, 0), App.Vector(-12.5, 27.5, 0)), False)
sketch14.addGeometry(Part.LineSegment(App.Vector(-12.5, 27.5, 0), App.Vector(-12.5, 27.65, 0)), False)
sketch14.addGeometry(Part.LineSegment(App.Vector(-12.5, 27.65, 0), App.Vector(-19.5, 27.65, 0)), False)
sketch14.addConstraint(Sketcher.Constraint("Coincident", 0, 2, 1, 1))
sketch14.addConstraint(Sketcher.Constraint("Coincident", 1, 2, 2, 1))
sketch14.addConstraint(Sketcher.Constraint("Coincident", 2, 2, 3, 1))
sketch14.addConstraint(Sketcher.Constraint("Coincident", 3, 2, 0, 1))
sketch14.addConstraint(Sketcher.Constraint("Vertical", 0))
sketch14.addConstraint(Sketcher.Constraint("Horizontal", 1))
sketch14.addConstraint(Sketcher.Constraint("Vertical", 2))
sketch14.addConstraint(Sketcher.Constraint("Horizontal", 3))
sketch14.addConstraint(Sketcher.Constraint("DistanceX", 1, 1, 1, 2, Q("7 mm")))
sketch14.addConstraint(Sketcher.Constraint("DistanceY", 0, 2, 0, 1, Q("0.15 mm")))
sketch14.addConstraint(Sketcher.Constraint("DistanceX", 0, 2, -1, 1, Q("19.5 mm")))
sketch14.addConstraint(Sketcher.Constraint("DistanceY", -1, 1, 0, 2, Q("27.5 mm")))
pocket10 = body2.newObject("PartDesign::Pocket", "Pocket009")
pocket10.Profile = sketch14
pocket10.Length = 5

doc.recompute()
